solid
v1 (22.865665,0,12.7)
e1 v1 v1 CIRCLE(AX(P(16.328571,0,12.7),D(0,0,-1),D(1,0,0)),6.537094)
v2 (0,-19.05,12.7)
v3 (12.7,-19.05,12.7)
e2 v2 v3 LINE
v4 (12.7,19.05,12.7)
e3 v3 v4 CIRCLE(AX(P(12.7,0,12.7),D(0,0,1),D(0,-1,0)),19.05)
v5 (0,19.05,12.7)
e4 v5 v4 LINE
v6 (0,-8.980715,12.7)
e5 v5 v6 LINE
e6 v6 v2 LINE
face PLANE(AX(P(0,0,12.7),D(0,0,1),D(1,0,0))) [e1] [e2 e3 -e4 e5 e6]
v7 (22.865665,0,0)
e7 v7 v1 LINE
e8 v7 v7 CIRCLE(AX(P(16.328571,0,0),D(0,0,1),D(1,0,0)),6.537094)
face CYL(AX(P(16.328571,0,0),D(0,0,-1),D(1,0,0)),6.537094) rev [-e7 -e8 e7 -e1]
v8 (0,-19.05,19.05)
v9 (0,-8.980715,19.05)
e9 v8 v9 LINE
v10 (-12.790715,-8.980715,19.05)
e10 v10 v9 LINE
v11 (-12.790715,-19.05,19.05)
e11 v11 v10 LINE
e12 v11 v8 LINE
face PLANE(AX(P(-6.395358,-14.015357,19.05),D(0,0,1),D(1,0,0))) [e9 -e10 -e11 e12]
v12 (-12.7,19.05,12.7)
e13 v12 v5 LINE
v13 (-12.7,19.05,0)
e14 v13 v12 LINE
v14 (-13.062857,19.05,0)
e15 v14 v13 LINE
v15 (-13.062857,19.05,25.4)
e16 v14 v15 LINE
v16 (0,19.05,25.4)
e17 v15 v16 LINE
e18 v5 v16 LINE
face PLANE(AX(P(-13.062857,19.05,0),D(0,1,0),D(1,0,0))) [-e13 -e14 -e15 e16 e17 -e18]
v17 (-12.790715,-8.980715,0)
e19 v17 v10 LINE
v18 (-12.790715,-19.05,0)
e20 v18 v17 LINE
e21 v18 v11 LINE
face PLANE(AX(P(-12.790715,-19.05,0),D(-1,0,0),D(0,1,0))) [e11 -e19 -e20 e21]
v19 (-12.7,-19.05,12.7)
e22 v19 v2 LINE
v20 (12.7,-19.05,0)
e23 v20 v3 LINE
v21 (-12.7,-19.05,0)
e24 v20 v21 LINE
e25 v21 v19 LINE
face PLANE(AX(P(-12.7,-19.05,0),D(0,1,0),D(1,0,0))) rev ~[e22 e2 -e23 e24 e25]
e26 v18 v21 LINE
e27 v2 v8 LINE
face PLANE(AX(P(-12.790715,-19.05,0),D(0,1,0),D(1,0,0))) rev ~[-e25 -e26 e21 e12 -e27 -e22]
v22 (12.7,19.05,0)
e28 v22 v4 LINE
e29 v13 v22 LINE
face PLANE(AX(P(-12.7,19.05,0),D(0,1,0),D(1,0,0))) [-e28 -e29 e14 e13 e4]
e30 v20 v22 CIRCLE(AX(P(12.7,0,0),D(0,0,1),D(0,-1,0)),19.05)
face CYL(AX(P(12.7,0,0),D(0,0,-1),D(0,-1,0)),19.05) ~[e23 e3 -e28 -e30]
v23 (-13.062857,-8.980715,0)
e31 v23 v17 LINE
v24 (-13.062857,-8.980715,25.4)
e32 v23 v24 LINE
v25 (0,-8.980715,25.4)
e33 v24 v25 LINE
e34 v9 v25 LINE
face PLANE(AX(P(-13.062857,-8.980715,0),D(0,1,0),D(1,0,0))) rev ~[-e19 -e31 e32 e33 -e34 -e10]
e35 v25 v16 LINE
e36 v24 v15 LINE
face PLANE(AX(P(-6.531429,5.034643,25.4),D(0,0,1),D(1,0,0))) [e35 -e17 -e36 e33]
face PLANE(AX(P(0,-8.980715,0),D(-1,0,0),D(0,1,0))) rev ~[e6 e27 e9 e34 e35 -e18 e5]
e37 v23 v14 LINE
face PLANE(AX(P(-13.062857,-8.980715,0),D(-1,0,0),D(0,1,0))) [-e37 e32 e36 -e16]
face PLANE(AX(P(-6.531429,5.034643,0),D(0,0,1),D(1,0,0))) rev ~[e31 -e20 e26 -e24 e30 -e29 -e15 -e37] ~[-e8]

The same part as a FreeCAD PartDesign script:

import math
import FreeCAD as App
import Part
import Sketcher
Q = App.Units.Quantity

doc = App.newDocument("Part")
body = doc.addObject("PartDesign::Body", "Body")

# Sketch on XY plane
sketch1 = body.newObject("Sketcher::SketchObject", "Sketch")
sketch1.AttachmentSupport = (doc.getObject("XY_Plane"), [""])
sketch1.MapMode = "FlatFace"
sketch1.addGeometry([
    Part.LineSegment(App.Vector(-13, 19, 0), App.Vector(-13, -19, 0)),
    Part.LineSegment(App.Vector(-13, -19, 0), App.Vector(13, -19, 0)),
    Part.ArcOfCircle(Part.Circle(App.Vector(13, 0, 0), App.Vector(0, 0, 1), 19), math.radians(-90), math.radians(90)),
    Part.LineSegment(App.Vector(13, 19, 0), App.Vector(-13, 19, 0)),
], False)
sketch1.addConstraint([
    Sketcher.Constraint("Coincident", 0, 2, 1, 1),
    Sketcher.Constraint("Tangent", 1, 2, 2, 1),
    Sketcher.Constraint("Tangent", 2, 2, 3, 1),
    Sketcher.Constraint("Coincident", 3, 2, 0, 1),
    Sketcher.Constraint("Vertical", 0),
    Sketcher.Constraint("Horizontal", 1),
    Sketcher.Constraint("Horizontal", 3),
    Sketcher.Constraint("Symmetric", 0, 2, 2, 2, -1, 1),
    Sketcher.Constraint("DistanceX", 1, 1, 1, 2, Q("1 in")),
    Sketcher.Constraint("Radius", 2, Q("0.75 in")),
])
pad1 = body.newObject("PartDesign::Pad", "Pad")
pad1.Profile = sketch1
pad1.Length = Q("0.5 in")

# Sketch on XY plane
sketch2 = body.newObject("Sketcher::SketchObject", "Sketch001")
sketch2.AttachmentSupport = (doc.getObject("XY_Plane"), [""])
sketch2.MapMode = "FlatFace"
sketch2.addGeometry(Part.Circle(App.Vector(16, 0, 0), App.Vector(0, 0, 1), 7), False)
sketch2.addConstraint([
    Sketcher.Constraint("PointOnObject", 0, 3, -1),
    Sketcher.Constraint("Diameter", 0, 13.074188),
    Sketcher.Constraint("DistanceX", -1, 1, 0, 3, 16.328571),
])
pocket1 = body.newObject("PartDesign::Pocket", "Pocket")
pocket1.Profile = sketch2
pocket1.Type = "ThroughAll"
pocket1.Reversed = True

# Sketch on XY plane
sketch3 = body.newObject("Sketcher::SketchObject", "Sketch002")
sketch3.AttachmentSupport = (doc.getObject("XY_Plane"), [""])
sketch3.MapMode = "FlatFace"
sketch3.addGeometry([
    Part.LineSegment(App.Vector(-13, -9, 0), App.Vector(-13, -19, 0)),
    Part.LineSegment(App.Vector(-13, -19, 0), App.Vector(0, -19, 0)),
    Part.LineSegment(App.Vector(0, -19, 0), App.Vector(0, -9, 0)),
    Part.LineSegment(App.Vector(0, -9, 0), App.Vector(-13, -9, 0)),
], False)
sketch3.addConstraint([
    Sketcher.Constraint("Coincident", 0, 2, 1, 1),
    Sketcher.Constraint("Coincident", 1, 2, 2, 1),
    Sketcher.Constraint("Coincident", 2, 2, 3, 1),
    Sketcher.Constraint("Coincident", 3, 2, 0, 1),
    Sketcher.Constraint("Vertical", 0),
    Sketcher.Constraint("Horizontal", 1),
    Sketcher.Constraint("Vertical", 2),
    Sketcher.Constraint("Horizontal", 3),
    Sketcher.Constraint("PointOnObject", 1, 2, -2),
    Sketcher.Constraint("DistanceY", 0, 2, -1, 1, Q("0.75 in")),
    Sketcher.Constraint("DistanceX", 1, 1, 1, 2, 12.790715),
    Sketcher.Constraint("DistanceY", 0, 2, 0, 1, 10.069286),
])
pad2 = body.newObject("PartDesign::Pad", "Pad001")
pad2.Profile = sketch3
pad2.Length = Q("0.75 in")

# Sketch on XY plane
sketch4 = body.newObject("Sketcher::SketchObject", "Sketch003")
sketch4.AttachmentSupport = (doc.getObject("XY_Plane"), [""])
sketch4.MapMode = "FlatFace"
sketch4.addGeometry([
    Part.LineSegment(App.Vector(-13, 19, 0), App.Vector(-13, -9, 0)),
    Part.LineSegment(App.Vector(-13, -9, 0), App.Vector(0, -9, 0)),
    Part.LineSegment(App.Vector(0, -9, 0), App.Vector(0, 19, 0)),
    Part.LineSegment(App.Vector(0, 19, 0), App.Vector(-13, 19, 0)),
], False)
sketch4.addConstraint([
    Sketcher.Constraint("Coincident", 0, 2, 1, 1),
    Sketcher.Constraint("Coincident", 1, 2, 2, 1),
    Sketcher.Constraint("Coincident", 2, 2, 3, 1),
    Sketcher.Constraint("Coincident", 3, 2, 0, 1),
    Sketcher.Constraint("Vertical", 0),
    Sketcher.Constraint("Horizontal", 1),
    Sketcher.Constraint("Vertical", 2),
    Sketcher.Constraint("Horizontal", 3),
    Sketcher.Constraint("PointOnObject", 1, 2, -2),
    Sketcher.Constraint("DistanceY", -1, 1, 2, 2, Q("0.75 in")),
    Sketcher.Constraint("DistanceX", 1, 1, 1, 2, 13.062857),
    Sketcher.Constraint("DistanceY", 0, 2, 0, 1, 28.030715),
])
pad3 = body.newObject("PartDesign::Pad", "Pad002")
pad3.Profile = sketch4
pad3.Length = Q("1 in")

doc.recompute()
